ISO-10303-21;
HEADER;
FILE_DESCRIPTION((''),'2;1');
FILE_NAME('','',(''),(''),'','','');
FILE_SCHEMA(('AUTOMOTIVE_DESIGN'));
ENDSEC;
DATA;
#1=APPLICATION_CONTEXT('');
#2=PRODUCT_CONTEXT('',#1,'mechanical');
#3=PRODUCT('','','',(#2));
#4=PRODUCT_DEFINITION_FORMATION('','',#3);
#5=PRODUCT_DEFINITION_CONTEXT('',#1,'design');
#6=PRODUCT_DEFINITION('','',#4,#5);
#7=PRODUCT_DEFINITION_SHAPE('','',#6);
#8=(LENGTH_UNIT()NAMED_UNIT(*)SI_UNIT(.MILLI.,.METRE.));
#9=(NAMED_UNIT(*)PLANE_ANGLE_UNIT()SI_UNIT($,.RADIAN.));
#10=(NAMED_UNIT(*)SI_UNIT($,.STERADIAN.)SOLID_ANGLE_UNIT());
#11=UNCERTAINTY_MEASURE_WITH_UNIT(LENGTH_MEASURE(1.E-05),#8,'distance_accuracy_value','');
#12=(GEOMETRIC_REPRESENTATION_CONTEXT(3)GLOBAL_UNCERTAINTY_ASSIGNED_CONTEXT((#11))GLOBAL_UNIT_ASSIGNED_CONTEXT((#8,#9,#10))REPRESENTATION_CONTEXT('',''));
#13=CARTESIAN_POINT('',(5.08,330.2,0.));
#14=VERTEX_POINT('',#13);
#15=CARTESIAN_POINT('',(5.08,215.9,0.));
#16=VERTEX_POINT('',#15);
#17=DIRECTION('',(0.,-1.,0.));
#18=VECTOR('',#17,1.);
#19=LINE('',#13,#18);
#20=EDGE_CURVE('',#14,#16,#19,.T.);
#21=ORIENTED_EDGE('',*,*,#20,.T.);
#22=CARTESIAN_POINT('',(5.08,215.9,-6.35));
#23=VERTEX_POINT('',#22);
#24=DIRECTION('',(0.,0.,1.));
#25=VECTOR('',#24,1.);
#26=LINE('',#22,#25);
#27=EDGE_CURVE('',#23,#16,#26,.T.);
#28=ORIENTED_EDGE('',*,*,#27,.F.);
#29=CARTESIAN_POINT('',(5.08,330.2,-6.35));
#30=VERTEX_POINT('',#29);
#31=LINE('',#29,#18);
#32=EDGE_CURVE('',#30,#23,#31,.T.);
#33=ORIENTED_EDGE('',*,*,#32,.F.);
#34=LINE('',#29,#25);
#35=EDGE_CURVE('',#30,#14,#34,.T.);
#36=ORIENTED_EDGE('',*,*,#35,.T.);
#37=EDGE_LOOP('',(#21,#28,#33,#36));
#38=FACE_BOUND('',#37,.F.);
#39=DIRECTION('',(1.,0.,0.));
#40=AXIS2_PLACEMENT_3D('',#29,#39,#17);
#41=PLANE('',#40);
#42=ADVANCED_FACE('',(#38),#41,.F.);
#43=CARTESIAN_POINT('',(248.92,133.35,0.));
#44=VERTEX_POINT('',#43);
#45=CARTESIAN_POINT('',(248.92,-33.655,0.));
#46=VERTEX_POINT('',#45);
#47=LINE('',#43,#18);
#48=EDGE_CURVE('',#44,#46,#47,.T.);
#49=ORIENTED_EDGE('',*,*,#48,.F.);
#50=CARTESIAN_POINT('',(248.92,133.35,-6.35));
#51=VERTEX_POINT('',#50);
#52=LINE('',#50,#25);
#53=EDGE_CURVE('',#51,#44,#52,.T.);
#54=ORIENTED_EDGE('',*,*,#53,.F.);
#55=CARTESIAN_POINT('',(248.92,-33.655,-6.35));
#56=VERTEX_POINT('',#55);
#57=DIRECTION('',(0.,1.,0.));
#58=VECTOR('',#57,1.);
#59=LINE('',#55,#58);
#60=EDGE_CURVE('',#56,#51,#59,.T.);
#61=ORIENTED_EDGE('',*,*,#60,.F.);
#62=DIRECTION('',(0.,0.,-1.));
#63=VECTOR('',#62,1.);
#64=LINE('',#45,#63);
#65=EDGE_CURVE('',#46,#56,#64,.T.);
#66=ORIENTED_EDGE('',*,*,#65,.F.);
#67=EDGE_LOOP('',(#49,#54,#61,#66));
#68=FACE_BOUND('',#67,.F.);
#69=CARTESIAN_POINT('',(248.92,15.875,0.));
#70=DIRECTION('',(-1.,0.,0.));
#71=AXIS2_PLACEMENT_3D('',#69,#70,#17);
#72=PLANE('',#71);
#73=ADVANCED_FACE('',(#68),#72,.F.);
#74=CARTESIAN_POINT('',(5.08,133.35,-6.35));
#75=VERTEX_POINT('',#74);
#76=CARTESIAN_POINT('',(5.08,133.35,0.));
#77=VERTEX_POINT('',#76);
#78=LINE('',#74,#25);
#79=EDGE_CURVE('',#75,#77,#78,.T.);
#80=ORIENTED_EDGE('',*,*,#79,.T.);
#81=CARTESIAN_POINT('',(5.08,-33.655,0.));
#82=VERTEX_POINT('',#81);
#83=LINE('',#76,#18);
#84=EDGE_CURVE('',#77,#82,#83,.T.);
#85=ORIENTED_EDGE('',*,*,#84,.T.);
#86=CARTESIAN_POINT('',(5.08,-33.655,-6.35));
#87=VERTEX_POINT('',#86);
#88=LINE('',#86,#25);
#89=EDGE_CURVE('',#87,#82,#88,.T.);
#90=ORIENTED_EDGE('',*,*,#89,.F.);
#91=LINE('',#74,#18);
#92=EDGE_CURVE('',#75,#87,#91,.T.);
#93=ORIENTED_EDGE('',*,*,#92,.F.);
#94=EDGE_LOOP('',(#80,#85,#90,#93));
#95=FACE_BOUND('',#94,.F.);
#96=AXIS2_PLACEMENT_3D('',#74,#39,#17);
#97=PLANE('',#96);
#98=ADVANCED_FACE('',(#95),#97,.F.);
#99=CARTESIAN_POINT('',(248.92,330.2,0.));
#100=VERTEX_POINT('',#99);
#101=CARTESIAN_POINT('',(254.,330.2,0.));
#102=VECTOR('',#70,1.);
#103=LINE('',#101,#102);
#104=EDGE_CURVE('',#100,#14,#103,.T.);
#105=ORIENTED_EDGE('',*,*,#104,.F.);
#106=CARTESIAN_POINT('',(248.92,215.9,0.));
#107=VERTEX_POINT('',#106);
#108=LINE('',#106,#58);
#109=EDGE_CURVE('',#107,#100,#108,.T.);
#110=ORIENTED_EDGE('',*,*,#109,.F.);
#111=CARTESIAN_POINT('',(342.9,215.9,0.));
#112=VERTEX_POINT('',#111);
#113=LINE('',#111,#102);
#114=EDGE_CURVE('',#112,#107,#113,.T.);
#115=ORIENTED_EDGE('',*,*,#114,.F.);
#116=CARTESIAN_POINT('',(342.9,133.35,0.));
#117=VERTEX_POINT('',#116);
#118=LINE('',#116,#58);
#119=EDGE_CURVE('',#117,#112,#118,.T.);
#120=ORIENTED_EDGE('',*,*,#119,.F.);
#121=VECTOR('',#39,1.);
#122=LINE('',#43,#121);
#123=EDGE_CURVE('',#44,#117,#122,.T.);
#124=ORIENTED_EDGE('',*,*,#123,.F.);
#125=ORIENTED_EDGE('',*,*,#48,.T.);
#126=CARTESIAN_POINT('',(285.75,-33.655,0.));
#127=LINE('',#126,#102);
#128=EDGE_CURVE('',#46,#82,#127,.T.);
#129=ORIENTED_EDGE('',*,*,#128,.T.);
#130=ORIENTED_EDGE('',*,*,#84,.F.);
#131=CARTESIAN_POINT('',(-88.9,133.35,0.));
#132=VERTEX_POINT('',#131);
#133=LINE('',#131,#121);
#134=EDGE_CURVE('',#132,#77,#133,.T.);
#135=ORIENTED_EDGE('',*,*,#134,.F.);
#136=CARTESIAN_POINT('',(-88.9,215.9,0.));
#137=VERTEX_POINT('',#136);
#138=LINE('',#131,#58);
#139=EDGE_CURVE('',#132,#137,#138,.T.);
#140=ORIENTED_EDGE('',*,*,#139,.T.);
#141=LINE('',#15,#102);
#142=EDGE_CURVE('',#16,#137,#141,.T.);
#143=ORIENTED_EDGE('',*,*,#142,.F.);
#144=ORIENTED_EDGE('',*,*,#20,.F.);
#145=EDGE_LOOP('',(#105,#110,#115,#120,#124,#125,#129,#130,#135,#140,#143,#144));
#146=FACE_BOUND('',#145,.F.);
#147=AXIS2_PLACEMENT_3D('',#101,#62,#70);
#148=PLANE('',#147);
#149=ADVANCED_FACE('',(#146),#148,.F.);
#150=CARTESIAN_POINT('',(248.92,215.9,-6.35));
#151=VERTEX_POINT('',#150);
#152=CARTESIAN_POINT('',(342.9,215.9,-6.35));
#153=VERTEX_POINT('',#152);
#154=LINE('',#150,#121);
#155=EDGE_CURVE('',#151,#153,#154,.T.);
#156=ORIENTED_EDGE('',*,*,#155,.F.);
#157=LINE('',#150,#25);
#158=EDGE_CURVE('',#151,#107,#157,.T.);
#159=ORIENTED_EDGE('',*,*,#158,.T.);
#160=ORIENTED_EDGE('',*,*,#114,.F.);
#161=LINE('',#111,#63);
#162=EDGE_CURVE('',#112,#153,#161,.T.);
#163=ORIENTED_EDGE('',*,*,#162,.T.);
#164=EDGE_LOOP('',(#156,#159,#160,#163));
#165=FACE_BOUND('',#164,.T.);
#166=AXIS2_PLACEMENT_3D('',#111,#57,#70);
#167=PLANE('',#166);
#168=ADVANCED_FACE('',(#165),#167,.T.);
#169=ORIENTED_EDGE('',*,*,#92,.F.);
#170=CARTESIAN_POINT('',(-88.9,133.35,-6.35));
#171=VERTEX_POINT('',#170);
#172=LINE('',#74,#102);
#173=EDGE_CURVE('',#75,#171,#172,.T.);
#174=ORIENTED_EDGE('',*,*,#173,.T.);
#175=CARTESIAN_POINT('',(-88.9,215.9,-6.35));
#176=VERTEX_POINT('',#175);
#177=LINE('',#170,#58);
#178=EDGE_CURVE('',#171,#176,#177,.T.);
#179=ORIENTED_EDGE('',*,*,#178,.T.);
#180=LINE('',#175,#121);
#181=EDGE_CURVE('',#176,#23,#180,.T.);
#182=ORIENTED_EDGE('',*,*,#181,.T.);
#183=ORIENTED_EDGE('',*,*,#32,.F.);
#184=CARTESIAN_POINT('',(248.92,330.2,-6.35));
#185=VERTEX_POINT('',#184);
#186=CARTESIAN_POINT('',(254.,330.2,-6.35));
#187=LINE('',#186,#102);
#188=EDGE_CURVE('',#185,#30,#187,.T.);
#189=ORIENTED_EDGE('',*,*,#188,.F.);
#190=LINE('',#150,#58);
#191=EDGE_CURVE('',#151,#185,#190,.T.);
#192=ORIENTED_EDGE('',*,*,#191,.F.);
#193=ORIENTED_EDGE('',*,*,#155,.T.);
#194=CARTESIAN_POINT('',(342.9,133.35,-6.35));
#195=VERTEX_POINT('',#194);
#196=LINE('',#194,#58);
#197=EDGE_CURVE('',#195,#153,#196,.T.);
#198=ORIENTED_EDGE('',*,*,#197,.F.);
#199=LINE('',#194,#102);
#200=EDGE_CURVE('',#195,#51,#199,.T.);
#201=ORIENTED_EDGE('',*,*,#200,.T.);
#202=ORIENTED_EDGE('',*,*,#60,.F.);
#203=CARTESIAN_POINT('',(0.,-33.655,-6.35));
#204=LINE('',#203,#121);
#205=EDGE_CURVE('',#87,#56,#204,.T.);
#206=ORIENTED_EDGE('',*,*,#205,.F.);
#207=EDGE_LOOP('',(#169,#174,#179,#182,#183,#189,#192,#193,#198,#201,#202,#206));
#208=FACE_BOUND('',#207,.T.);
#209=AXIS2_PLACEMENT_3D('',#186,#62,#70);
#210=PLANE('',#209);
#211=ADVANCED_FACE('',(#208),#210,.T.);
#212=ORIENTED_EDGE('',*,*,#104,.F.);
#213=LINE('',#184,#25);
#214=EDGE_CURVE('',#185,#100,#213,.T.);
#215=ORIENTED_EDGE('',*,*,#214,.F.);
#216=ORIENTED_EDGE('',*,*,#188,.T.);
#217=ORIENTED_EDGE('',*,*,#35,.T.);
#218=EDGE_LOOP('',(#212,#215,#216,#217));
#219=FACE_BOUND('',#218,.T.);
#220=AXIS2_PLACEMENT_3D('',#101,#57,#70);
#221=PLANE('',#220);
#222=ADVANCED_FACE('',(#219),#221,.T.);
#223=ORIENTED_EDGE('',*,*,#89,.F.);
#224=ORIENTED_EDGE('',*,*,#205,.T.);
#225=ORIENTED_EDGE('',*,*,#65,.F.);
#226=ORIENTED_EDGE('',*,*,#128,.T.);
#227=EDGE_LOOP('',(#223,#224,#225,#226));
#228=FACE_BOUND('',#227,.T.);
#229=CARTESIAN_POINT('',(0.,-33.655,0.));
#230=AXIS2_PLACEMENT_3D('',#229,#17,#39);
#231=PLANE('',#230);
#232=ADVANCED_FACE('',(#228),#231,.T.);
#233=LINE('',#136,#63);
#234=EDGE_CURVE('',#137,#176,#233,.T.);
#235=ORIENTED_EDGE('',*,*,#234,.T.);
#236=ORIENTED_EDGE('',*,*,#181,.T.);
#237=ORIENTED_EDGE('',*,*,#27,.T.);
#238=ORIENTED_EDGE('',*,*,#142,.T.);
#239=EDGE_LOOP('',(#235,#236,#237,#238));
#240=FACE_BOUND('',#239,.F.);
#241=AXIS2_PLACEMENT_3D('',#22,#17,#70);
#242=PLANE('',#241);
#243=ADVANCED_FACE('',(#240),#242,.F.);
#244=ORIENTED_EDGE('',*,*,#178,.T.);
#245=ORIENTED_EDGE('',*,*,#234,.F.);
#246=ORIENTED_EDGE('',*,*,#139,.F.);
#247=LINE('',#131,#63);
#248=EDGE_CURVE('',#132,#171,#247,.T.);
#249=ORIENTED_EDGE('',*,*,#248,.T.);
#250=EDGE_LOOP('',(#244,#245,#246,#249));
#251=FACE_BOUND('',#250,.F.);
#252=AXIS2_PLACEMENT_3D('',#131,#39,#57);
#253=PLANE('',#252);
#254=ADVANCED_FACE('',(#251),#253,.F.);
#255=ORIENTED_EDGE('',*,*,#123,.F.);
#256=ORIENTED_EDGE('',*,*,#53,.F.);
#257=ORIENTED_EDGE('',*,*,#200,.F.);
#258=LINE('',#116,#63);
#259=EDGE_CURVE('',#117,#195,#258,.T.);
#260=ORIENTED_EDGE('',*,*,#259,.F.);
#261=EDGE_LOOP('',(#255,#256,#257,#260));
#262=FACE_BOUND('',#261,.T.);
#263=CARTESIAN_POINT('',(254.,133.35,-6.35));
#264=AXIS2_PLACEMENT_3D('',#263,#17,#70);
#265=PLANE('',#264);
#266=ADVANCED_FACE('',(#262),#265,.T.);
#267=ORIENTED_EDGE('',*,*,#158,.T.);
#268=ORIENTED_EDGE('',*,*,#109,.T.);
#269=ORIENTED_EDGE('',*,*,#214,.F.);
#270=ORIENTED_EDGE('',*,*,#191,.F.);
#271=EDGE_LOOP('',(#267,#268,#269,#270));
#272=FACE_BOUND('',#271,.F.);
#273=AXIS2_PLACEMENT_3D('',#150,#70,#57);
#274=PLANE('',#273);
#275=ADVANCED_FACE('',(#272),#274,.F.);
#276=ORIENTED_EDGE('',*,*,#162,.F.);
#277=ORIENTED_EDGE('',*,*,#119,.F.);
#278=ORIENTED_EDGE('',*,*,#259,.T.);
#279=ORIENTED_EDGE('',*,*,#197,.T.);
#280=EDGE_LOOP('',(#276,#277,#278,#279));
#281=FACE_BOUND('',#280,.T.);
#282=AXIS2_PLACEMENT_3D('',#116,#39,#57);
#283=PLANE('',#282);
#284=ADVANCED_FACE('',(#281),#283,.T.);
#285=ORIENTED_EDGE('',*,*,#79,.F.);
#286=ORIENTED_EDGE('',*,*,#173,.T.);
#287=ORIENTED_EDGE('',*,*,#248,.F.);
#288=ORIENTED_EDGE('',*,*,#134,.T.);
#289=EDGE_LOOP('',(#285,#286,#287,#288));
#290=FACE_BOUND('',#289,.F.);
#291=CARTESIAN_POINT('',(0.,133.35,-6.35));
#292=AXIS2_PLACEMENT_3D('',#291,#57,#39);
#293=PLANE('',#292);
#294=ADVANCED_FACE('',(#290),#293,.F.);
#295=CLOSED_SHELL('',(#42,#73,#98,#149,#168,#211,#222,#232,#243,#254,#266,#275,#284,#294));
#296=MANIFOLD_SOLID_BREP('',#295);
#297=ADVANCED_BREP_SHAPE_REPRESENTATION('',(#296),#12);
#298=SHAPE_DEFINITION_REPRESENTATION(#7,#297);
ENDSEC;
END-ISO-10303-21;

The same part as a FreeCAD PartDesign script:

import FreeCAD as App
import Part
import Sketcher
from FreeCAD import Vector
Q = App.Units.Quantity


def add_polygon(sketch, points):
    """Adds a closed chain of lines whose ends are joined by coincident constraints."""
    first, n = sketch.GeometryCount, len(points)
    for a, b in zip(points, points[1:] + points[:1]):
        sketch.addGeometry(Part.LineSegment(App.Vector(*a, 0), App.Vector(*b, 0)), False)
    for i in range(n):
        sketch.addConstraint(Sketcher.Constraint("Coincident", first + i, 2, first + (i + 1) % n, 1))

doc = App.newDocument("Part")
body = doc.addObject("PartDesign::Body", "Body")

# Sketch on XY plane
sketch1 = body.newObject("Sketcher::SketchObject", "Sketch")
sketch1.AttachmentSupport = (doc.getObject("XY_Plane"), [""])
sketch1.MapMode = "FlatFace"
add_polygon(sketch1, [(0, -34), (0, 133), (-89, 133), (-89, 216), (0, 216), (0, 330), (254, 330), (254, 216), (343, 216), (343, 133), (254, 133), (254, 16), (286, 16), (286, -34)])  # lines 0-13
sketch1.addConstraint([
    Sketcher.Constraint("Vertical", 0),
    Sketcher.Constraint("Horizontal", 1),
    Sketcher.Constraint("Vertical", 2),
    Sketcher.Constraint("Horizontal", 3),
    Sketcher.Constraint("Vertical", 4),
    Sketcher.Constraint("Horizontal", 5),
    Sketcher.Constraint("Vertical", 6),
    Sketcher.Constraint("Horizontal", 7),
    Sketcher.Constraint("Vertical", 8),
    Sketcher.Constraint("Horizontal", 9),
    Sketcher.Constraint("Vertical", 10),
    Sketcher.Constraint("Horizontal", 11),
    Sketcher.Constraint("Vertical", 12),
    Sketcher.Constraint("Horizontal", 13),
    Sketcher.Constraint("PointOnObject", 0, 2, -2),
    Sketcher.Constraint("PointOnObject", 3, 2, -2),
    Sketcher.Constraint("Horizontal", 3, 2, 6, 2),
    Sketcher.Constraint("Horizontal", 1, 2, 8, 2),
    Sketcher.Constraint("Vertical", 6, 2, 9, 2),
    Sketcher.Constraint("Equal", 3, 7),
    Sketcher.Constraint("DistanceX", 5, 1, 5, 2, Q("10 in")),
    Sketcher.Constraint("DistanceX", 11, 1, 11, 2, Q("1.25 in")),
    Sketcher.Constraint("DistanceY", 2, 1, 2, 2, Q("3.25 in")),
    Sketcher.Constraint("DistanceX", 1, 2, 1, 1, Q("3.5 in")),
    Sketcher.Constraint("DistanceY", 4, 1, 4, 2, Q("4.5 in")),
    Sketcher.Constraint("DistanceY", -1, 1, 4, 2, Q("13 in")),
    Sketcher.Constraint("DistanceY", 12, 2, 12, 1, Q("1.95 in")),
    Sketcher.Constraint("DistanceY", 0, 1, 0, 2, Q("6.575 in")),
])
pad1 = body.newObject("PartDesign::Pad", "Pad")
pad1.Profile = sketch1
pad1.Length = Q("0.25 in")
pad1.Reversed = True

# Sketch on XY plane
sketch2 = body.newObject("Sketcher::SketchObject", "Sketch001")
sketch2.AttachmentSupport = (doc.getObject("XY_Plane"), [""])
sketch2.MapMode = "FlatFace"
sketch2.AttachmentOffset = App.Placement(Vector(0, 0, -0.25 * 25.4), App.Rotation())
add_polygon(sketch2, [(249, 133), (254, 133), (254, 16), (249, 16)])  # lines 0-3
add_polygon(sketch2, [(5, -34), (0, -34), (0, 133), (5, 133)])  # lines 4-7
add_polygon(sketch2, [(0, 216), (0, 330), (5, 330), (5, 216)])  # lines 8-11
add_polygon(sketch2, [(249, 216), (249, 330), (254, 330), (254, 216)])  # lines 12-15
sketch2.addConstraint([
    Sketcher.Constraint("Horizontal", 0),
    Sketcher.Constraint("Vertical", 1),
    Sketcher.Constraint("Horizontal", 2),
    Sketcher.Constraint("Vertical", 3),
    Sketcher.Constraint("Horizontal", 4),
    Sketcher.Constraint("Vertical", 5),
    Sketcher.Constraint("Horizontal", 6),
    Sketcher.Constraint("Vertical", 7),
    Sketcher.Constraint("Vertical", 8),
    Sketcher.Constraint("Horizontal", 9),
    Sketcher.Constraint("Vertical", 10),
    Sketcher.Constraint("Horizontal", 11),
    Sketcher.Constraint("Vertical", 12),
    Sketcher.Constraint("Horizontal", 13),
    Sketcher.Constraint("Vertical", 14),
    Sketcher.Constraint("Horizontal", 15),
    Sketcher.Constraint("PointOnObject", 4, 2, -2),
    Sketcher.Constraint("PointOnObject", 8, 2, -2),
    Sketcher.Constraint("Horizontal", 3, 2, 5, 2),
    Sketcher.Constraint("Horizontal", 9, 2, 12, 2),
    Sketcher.Constraint("Horizontal", 11, 2, 14, 2),
    Sketcher.Constraint("Vertical", 7, 2, 9, 2),
    Sketcher.Constraint("Vertical", 3, 2, 12, 2),
    Sketcher.Constraint("Vertical", 1, 2, 13, 2),
    Sketcher.Constraint("Equal", 2, 4),
    Sketcher.Constraint("DistanceX", 0, 1, 0, 2, Q("0.2 in")),
    Sketcher.Constraint("DistanceY", 8, 1, 8, 2, Q("4.5 in")),
    Sketcher.Constraint("DistanceX", -1, 1, 0, 2, Q("10 in")),
    Sketcher.Constraint("DistanceY", -1, 1, 8, 2, Q("13 in")),
    Sketcher.Constraint("DistanceY", 1, 2, 1, 1, Q("4.625 in")),
    Sketcher.Constraint("DistanceY", 5, 1, 5, 2, Q("6.575 in")),
    Sketcher.Constraint("DistanceY", -1, 1, 0, 2, Q("5.25 in")),
])
pocket1 = body.newObject("PartDesign::Pocket", "Pocket")
pocket1.Profile = sketch2
pocket1.Length = Q("0.25 in")
pocket1.Reversed = True

# Sketch on XY plane
sketch3 = body.newObject("Sketcher::SketchObject", "Sketch002")
sketch3.AttachmentSupport = (doc.getObject("XY_Plane"), [""])
sketch3.MapMode = "FlatFace"
add_polygon(sketch3, [(286, 16), (249, 16), (249, -34), (286, -34)])  # lines 0-3
sketch3.addConstraint([
    Sketcher.Constraint("Horizontal", 0),
    Sketcher.Constraint("Vertical", 1),
    Sketcher.Constraint("Horizontal", 2),
    Sketcher.Constraint("Vertical", 3),
    Sketcher.Constraint("DistanceX", 0, 2, 0, 1, Q("1.45 in")),
    Sketcher.Constraint("DistanceY", 1, 2, 1, 1, Q("1.95 in")),
    Sketcher.Constraint("DistanceX", -1, 1, 0, 2, Q("9.8 in")),
    Sketcher.Constraint("DistanceY", -1, 1, 0, 2, Q("0.625 in")),
])
pocket2 = body.newObject("PartDesign::Pocket", "Pocket001")
pocket2.Profile = sketch3
pocket2.Length = Q("0.25 in")

doc.recompute()
